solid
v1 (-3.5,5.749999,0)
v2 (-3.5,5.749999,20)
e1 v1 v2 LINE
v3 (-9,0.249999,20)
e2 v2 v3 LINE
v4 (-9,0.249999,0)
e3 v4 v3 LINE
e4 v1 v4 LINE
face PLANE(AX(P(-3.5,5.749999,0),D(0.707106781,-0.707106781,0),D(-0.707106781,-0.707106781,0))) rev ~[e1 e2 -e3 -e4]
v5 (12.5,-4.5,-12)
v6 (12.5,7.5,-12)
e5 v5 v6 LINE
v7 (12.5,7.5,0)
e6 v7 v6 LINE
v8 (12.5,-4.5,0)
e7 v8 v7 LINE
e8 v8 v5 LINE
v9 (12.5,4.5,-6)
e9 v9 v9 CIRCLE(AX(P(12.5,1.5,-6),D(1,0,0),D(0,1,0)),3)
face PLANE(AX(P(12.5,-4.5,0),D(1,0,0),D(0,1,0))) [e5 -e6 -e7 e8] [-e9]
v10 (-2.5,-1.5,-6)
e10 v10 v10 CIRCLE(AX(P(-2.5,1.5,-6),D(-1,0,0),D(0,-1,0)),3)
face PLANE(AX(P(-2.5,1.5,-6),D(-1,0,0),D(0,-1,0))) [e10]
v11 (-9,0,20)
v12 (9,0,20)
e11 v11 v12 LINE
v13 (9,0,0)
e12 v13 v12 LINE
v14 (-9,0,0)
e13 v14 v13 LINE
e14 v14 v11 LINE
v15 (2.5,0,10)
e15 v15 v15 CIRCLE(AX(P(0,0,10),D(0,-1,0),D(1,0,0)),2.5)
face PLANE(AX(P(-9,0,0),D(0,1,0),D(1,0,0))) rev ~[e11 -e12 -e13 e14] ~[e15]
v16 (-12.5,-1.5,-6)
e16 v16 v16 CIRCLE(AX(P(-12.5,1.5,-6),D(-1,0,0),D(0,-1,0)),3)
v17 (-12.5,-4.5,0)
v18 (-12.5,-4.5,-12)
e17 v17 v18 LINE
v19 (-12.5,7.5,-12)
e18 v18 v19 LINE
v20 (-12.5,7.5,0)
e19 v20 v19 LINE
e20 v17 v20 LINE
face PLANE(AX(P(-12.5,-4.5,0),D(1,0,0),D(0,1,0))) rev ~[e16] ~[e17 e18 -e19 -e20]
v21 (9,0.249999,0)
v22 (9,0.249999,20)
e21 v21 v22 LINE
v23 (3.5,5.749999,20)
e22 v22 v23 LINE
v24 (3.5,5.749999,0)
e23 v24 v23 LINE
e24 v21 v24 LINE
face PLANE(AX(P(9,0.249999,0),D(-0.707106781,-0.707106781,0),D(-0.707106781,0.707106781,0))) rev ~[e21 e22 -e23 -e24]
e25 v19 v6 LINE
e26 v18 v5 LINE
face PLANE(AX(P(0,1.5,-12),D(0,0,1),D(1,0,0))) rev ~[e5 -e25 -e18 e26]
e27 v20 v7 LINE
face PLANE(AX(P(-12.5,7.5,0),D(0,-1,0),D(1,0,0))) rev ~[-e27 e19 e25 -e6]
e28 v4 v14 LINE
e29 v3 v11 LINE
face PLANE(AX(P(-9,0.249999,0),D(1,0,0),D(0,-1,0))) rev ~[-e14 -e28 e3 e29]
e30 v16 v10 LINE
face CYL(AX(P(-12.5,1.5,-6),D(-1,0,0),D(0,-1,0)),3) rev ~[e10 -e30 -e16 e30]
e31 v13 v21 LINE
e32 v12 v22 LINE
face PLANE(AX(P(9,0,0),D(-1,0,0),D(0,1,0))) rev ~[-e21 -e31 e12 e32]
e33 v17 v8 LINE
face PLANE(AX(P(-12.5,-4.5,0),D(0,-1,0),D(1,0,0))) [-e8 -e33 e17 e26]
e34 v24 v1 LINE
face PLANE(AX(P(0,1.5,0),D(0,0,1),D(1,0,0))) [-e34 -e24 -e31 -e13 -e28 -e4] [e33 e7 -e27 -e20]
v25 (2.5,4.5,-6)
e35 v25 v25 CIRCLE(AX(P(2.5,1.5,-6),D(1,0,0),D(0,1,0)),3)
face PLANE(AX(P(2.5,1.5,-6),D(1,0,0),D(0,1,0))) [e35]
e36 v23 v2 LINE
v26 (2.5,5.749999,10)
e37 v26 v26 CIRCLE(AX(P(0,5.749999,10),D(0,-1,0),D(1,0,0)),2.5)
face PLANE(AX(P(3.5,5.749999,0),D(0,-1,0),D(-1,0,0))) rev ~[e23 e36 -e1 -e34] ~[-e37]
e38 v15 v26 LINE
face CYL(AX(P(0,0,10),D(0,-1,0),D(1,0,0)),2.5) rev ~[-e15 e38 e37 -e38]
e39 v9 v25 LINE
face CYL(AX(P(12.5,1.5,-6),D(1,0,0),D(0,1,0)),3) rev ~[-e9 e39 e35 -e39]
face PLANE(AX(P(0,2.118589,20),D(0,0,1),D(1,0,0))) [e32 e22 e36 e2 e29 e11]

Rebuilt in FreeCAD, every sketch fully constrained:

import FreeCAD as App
import Part
import Sketcher
Q = App.Units.Quantity


def add_polygon(sketch, points):
    """Adds a closed chain of lines whose ends are joined by coincident constraints."""
    first, n = sketch.GeometryCount, len(points)
    for a, b in zip(points, points[1:] + points[:1]):
        sketch.addGeometry(Part.LineSegment(App.Vector(*a, 0), App.Vector(*b, 0)), False)
    for i in range(n):
        sketch.addConstraint(Sketcher.Constraint("Coincident", first + i, 2, first + (i + 1) % n, 1))

doc = App.newDocument("Part")
body = doc.addObject("PartDesign::Body", "Body")

# Sketch on XY plane
sketch1 = doc.addObject("Sketcher::SketchObject", "Sketch")
body.addObject(sketch1)
sketch1.AttachmentSupport = (doc.XY_Plane, [""])
sketch1.MapMode = "FlatFace"
add_polygon(sketch1, [(-9, 0), (9, 0), (9, 0.25), (3.5, 5.75), (-3.5, 5.75), (-9, 0.25)])  # lines 0-5
sketch1.addConstraint([
    Sketcher.Constraint("Horizontal", 0),
    Sketcher.Constraint("Vertical", 1),
    Sketcher.Constraint("Horizontal", 3),
    Sketcher.Constraint("Vertical", 5),
    Sketcher.Constraint("Symmetric", 0, 2, 5, 2, -1, 1),
    Sketcher.Constraint("Perpendicular", 2, 4),
    Sketcher.Constraint("Horizontal", 1, 2, 4, 2),
    Sketcher.Constraint("Equal", 2, 4),
    Sketcher.Constraint("DistanceX", 0, 1, 0, 2, Q("18 mm")),
    Sketcher.Constraint("DistanceX", 3, 2, 3, 1, Q("7 mm")),
    Sketcher.Constraint("DistanceY", 1, 1, 1, 2, Q("0.249999 mm")),
])
pad1 = doc.addObject("PartDesign::Pad", "Pad")
body.addObject(pad1)
pad1.Profile = sketch1
pad1.Length = 20

# Sketch on XY plane
sketch2 = doc.addObject("Sketcher::SketchObject", "Sketch001")
body.addObject(sketch2)
sketch2.AttachmentSupport = (doc.XY_Plane, [""])
sketch2.MapMode = "FlatFace"
add_polygon(sketch2, [(-12, 8), (-12, -4), (12, -4), (12, 8)])  # lines 0-3
sketch2.addConstraint([
    Sketcher.Constraint("Vertical", 0),
    Sketcher.Constraint("Horizontal", 1),
    Sketcher.Constraint("Vertical", 2),
    Sketcher.Constraint("Horizontal", 3),
    Sketcher.Constraint("DistanceX", 1, 1, 1, 2, Q("25 mm")),
    Sketcher.Constraint("DistanceY", 0, 2, 0, 1, Q("12 mm")),
    Sketcher.Constraint("DistanceX", 0, 2, -1, 1, Q("12.5 mm")),
    Sketcher.Constraint("DistanceY", 0, 2, -1, 1, Q("4.5 mm")),
])
pad2 = doc.addObject("PartDesign::Pad", "Pad001")
body.addObject(pad2)
pad2.Profile = sketch2
pad2.Length = 12
pad2.Reversed = True

# Sketch on YZ plane
sketch3 = doc.addObject("Sketcher::SketchObject", "Sketch002")
body.addObject(sketch3)
sketch3.AttachmentSupport = (doc.YZ_Plane, [""])
sketch3.MapMode = "FlatFace"
sketch3.AttachmentOffset = App.Placement(App.Vector(0, 0, 12.5), App.Rotation())
sketch3.addGeometry(Part.Circle(App.Vector(1.5, -6, 0), App.Vector(0, 0, 1), 3), False)
sketch3.addConstraint([
    Sketcher.Constraint("Diameter", 0, Q("6 mm")),
    Sketcher.Constraint("DistanceY", 0, 3, -1, 1, Q("6 mm")),
    Sketcher.Constraint("DistanceX", -1, 1, 0, 3, Q("1.5 mm")),
])
pocket1 = doc.addObject("PartDesign::Pocket", "Pocket")
body.addObject(pocket1)
pocket1.Profile = sketch3
pocket1.Length = 10

# Sketch on YZ plane
sketch4 = doc.addObject("Sketcher::SketchObject", "Sketch003")
body.addObject(sketch4)
sketch4.AttachmentSupport = (doc.YZ_Plane, [""])
sketch4.MapMode = "FlatFace"
sketch4.AttachmentOffset = App.Placement(App.Vector(0, 0, -12.5), App.Rotation())
sketch4.addGeometry(Part.Circle(App.Vector(1.5, -6, 0), App.Vector(0, 0, 1), 3), False)
sketch4.addConstraint([
    Sketcher.Constraint("Diameter", 0, Q("6 mm")),
    Sketcher.Constraint("DistanceY", 0, 3, -1, 1, Q("6 mm")),
    Sketcher.Constraint("DistanceX", -1, 1, 0, 3, Q("1.5 mm")),
])
pocket2 = doc.addObject("PartDesign::Pocket", "Pocket001")
body.addObject(pocket2)
pocket2.Profile = sketch4
pocket2.Length = 10
pocket2.Reversed = True

# Sketch on XZ plane
sketch5 = doc.addObject("Sketcher::SketchObject", "Sketch004")
body.addObject(sketch5)
sketch5.AttachmentSupport = (doc.XZ_Plane, [""])
sketch5.MapMode = "FlatFace"
sketch5.addGeometry(Part.Circle(App.Vector(0, 10, 0), App.Vector(0, 0, 1), 2.5), False)
sketch5.addConstraint([
    Sketcher.Constraint("PointOnObject", 0, 3, -2),
    Sketcher.Constraint("Diameter", 0, Q("5 mm")),
    Sketcher.Constraint("DistanceY", -1, 1, 0, 3, Q("10 mm")),
])
pocket3 = doc.addObject("PartDesign::Pocket", "Pocket002")
body.addObject(pocket3)
pocket3.Profile = sketch5
pocket3.Length = 25

doc.recompute()
